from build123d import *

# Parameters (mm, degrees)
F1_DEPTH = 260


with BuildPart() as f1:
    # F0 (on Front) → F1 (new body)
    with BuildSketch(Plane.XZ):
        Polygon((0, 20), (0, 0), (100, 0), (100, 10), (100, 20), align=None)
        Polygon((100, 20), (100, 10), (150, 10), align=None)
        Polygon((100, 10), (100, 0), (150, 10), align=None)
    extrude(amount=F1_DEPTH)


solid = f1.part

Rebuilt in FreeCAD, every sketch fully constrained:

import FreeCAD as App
import Part
import Sketcher

V = App.Vector
Q = App.Units.Quantity


def add_polygon(sketch, points):
    """Adds a closed chain of lines whose ends are joined by coincident constraints."""
    first, n = sketch.GeometryCount, len(points)
    for a, b in zip(points, points[1:] + points[:1]):
        sketch.addGeometry(Part.LineSegment(App.Vector(*a, 0), App.Vector(*b, 0)), False)
    for i in range(n):
        sketch.addConstraint(Sketcher.Constraint("Coincident", first + i, 2, first + (i + 1) % n, 1))

doc = App.newDocument("Part")
body = doc.addObject("PartDesign::Body", "Body")

sketch1 = doc.addObject("Sketcher::SketchObject", "Sketch")
body.addObject(sketch1)
sketch1.AttachmentSupport = (doc.XZ_Plane, [""])
sketch1.MapMode = "FlatFace"
add_polygon(sketch1, [(0, 20), (0, 0), (100, 0), (150, 10), (100, 20)])
sketch1.addConstraint([
    Sketcher.Constraint("Vertical", 0),
    Sketcher.Constraint("Horizontal", 1),
    Sketcher.Constraint("Horizontal", 4),
    Sketcher.Constraint("Coincident", 0, 2, -1, 1),
    Sketcher.Constraint("Vertical", 1, 2, 3, 2),
    Sketcher.Constraint("Equal", 2, 3),
    Sketcher.Constraint("DistanceX", 1, 1, 1, 2, Q("100 mm")),
    Sketcher.Constraint("DistanceY", 0, 2, 0, 1, Q("20 mm")),
    Sketcher.Constraint("DistanceX", -1, 1, 2, 2, Q("150 mm")),
])
pad1 = doc.addObject("PartDesign::Pad", "Pad")
body.addObject(pad1)
pad1.Profile = sketch1
pad1.Length = 260

doc.recompute()
